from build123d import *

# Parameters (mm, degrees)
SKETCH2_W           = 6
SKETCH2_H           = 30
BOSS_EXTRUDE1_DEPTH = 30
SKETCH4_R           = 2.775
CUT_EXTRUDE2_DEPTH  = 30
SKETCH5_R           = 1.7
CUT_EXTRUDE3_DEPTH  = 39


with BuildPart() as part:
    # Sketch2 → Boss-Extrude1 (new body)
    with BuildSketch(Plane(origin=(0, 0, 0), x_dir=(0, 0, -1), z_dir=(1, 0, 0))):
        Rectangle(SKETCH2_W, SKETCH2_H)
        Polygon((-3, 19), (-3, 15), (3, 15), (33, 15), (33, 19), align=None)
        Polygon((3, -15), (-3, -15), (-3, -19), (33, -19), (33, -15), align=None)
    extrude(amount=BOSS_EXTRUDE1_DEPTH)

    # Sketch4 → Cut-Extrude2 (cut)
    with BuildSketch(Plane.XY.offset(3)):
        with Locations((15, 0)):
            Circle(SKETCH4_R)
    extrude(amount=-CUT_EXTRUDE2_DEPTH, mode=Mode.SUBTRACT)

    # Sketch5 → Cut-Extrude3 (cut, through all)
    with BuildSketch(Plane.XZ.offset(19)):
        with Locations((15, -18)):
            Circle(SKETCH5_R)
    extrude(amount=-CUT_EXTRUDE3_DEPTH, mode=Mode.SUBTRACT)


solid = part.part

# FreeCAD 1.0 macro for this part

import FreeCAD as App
import Part
import Sketcher
Q = App.Units.Quantity

doc = App.newDocument("Part")
body = doc.addObject("PartDesign::Body", "Body")

# Sketch on YZ plane
sketch1 = body.newObject("Sketcher::SketchObject", "Sketch")
sketch1.AttachmentSupport = (doc.getObject("YZ_Plane"), [""])
sketch1.MapMode = "FlatFace"
sketch1.addGeometry([
    Part.LineSegment(App.Vector(-15, -3, 0), App.Vector(15, -3, 0)),  # 0
    Part.LineSegment(App.Vector(15, -3, 0), App.Vector(15, -33, 0)),  # 1
    Part.LineSegment(App.Vector(15, -33, 0), App.Vector(19, -33, 0)),  # 2
    Part.LineSegment(App.Vector(19, -33, 0), App.Vector(19, 3, 0)),  # 3
    Part.LineSegment(App.Vector(19, 3, 0), App.Vector(-19, 3, 0)),  # 4
    Part.LineSegment(App.Vector(-19, 3, 0), App.Vector(-19, -33, 0)),  # 5
    Part.LineSegment(App.Vector(-19, -33, 0), App.Vector(-15, -33, 0)),  # 6
    Part.LineSegment(App.Vector(-15, -33, 0), App.Vector(-15, -3, 0)),  # 7
], False)
sketch1.addConstraint([
    Sketcher.Constraint("Coincident", 0, 2, 1, 1),
    Sketcher.Constraint("Coincident", 1, 2, 2, 1),
    Sketcher.Constraint("Coincident", 2, 2, 3, 1),
    Sketcher.Constraint("Coincident", 3, 2, 4, 1),
    Sketcher.Constraint("Coincident", 4, 2, 5, 1),
    Sketcher.Constraint("Coincident", 5, 2, 6, 1),
    Sketcher.Constraint("Coincident", 6, 2, 7, 1),
    Sketcher.Constraint("Coincident", 7, 2, 0, 1),
    Sketcher.Constraint("Horizontal", 0),
    Sketcher.Constraint("Vertical", 1),
    Sketcher.Constraint("Horizontal", 2),
    Sketcher.Constraint("Vertical", 3),
    Sketcher.Constraint("Horizontal", 4),
    Sketcher.Constraint("Vertical", 5),
    Sketcher.Constraint("Horizontal", 6),
    Sketcher.Constraint("Vertical", 7),
    Sketcher.Constraint("Symmetric", 2, 2, 5, 2, -2),
    Sketcher.Constraint("Equal", 2, 6),
    Sketcher.Constraint("Equal", 0, 1),
    Sketcher.Constraint("DistanceX", 0, 1, 0, 2, Q("30 mm")),
    Sketcher.Constraint("DistanceX", 2, 1, 2, 2, Q("4 mm")),
    Sketcher.Constraint("DistanceY", 3, 1, 3, 2, Q("36 mm")),
    Sketcher.Constraint("DistanceY", 0, 2, -1, 1, Q("3 mm")),
])
pad1 = body.newObject("PartDesign::Pad", "Pad")
pad1.Profile = sketch1
pad1.Length = 30

# Sketch on XY plane
sketch2 = body.newObject("Sketcher::SketchObject", "Sketch001")
sketch2.AttachmentSupport = (doc.getObject("XY_Plane"), [""])
sketch2.MapMode = "FlatFace"
sketch2.AttachmentOffset = App.Placement(App.Vector(0, 0, 3), App.Rotation())
sketch2.addGeometry(Part.Circle(App.Vector(15, 0, 0), App.Vector(0, 0, 1), 2.775), False)
sketch2.addConstraint([
    Sketcher.Constraint("PointOnObject", 0, 3, -1),
    Sketcher.Constraint("Diameter", 0, Q("5.55 mm")),
    Sketcher.Constraint("DistanceX", -1, 1, 0, 3, Q("15 mm")),
])
pocket1 = body.newObject("PartDesign::Pocket", "Pocket")
pocket1.Profile = sketch2
pocket1.Length = 30

# Sketch on XZ plane
sketch3 = body.newObject("Sketcher::SketchObject", "Sketch002")
sketch3.AttachmentSupport = (doc.getObject("XZ_Plane"), [""])
sketch3.MapMode = "FlatFace"
sketch3.AttachmentOffset = App.Placement(App.Vector(0, 0, 19), App.Rotation())
sketch3.addGeometry(Part.Circle(App.Vector(15, -18, 0), App.Vector(0, 0, 1), 1.7), False)
sketch3.addConstraint([
    Sketcher.Constraint("Diameter", 0, Q("3.4 mm")),
    Sketcher.Constraint("DistanceX", -1, 1, 0, 3, Q("15 mm")),
    Sketcher.Constraint("DistanceY", 0, 3, -1, 1, Q("18 mm")),
])
pocket2 = body.newObject("PartDesign::Pocket", "Pocket001")
pocket2.Profile = sketch3
pocket2.Type = "ThroughAll"

doc.recompute()
